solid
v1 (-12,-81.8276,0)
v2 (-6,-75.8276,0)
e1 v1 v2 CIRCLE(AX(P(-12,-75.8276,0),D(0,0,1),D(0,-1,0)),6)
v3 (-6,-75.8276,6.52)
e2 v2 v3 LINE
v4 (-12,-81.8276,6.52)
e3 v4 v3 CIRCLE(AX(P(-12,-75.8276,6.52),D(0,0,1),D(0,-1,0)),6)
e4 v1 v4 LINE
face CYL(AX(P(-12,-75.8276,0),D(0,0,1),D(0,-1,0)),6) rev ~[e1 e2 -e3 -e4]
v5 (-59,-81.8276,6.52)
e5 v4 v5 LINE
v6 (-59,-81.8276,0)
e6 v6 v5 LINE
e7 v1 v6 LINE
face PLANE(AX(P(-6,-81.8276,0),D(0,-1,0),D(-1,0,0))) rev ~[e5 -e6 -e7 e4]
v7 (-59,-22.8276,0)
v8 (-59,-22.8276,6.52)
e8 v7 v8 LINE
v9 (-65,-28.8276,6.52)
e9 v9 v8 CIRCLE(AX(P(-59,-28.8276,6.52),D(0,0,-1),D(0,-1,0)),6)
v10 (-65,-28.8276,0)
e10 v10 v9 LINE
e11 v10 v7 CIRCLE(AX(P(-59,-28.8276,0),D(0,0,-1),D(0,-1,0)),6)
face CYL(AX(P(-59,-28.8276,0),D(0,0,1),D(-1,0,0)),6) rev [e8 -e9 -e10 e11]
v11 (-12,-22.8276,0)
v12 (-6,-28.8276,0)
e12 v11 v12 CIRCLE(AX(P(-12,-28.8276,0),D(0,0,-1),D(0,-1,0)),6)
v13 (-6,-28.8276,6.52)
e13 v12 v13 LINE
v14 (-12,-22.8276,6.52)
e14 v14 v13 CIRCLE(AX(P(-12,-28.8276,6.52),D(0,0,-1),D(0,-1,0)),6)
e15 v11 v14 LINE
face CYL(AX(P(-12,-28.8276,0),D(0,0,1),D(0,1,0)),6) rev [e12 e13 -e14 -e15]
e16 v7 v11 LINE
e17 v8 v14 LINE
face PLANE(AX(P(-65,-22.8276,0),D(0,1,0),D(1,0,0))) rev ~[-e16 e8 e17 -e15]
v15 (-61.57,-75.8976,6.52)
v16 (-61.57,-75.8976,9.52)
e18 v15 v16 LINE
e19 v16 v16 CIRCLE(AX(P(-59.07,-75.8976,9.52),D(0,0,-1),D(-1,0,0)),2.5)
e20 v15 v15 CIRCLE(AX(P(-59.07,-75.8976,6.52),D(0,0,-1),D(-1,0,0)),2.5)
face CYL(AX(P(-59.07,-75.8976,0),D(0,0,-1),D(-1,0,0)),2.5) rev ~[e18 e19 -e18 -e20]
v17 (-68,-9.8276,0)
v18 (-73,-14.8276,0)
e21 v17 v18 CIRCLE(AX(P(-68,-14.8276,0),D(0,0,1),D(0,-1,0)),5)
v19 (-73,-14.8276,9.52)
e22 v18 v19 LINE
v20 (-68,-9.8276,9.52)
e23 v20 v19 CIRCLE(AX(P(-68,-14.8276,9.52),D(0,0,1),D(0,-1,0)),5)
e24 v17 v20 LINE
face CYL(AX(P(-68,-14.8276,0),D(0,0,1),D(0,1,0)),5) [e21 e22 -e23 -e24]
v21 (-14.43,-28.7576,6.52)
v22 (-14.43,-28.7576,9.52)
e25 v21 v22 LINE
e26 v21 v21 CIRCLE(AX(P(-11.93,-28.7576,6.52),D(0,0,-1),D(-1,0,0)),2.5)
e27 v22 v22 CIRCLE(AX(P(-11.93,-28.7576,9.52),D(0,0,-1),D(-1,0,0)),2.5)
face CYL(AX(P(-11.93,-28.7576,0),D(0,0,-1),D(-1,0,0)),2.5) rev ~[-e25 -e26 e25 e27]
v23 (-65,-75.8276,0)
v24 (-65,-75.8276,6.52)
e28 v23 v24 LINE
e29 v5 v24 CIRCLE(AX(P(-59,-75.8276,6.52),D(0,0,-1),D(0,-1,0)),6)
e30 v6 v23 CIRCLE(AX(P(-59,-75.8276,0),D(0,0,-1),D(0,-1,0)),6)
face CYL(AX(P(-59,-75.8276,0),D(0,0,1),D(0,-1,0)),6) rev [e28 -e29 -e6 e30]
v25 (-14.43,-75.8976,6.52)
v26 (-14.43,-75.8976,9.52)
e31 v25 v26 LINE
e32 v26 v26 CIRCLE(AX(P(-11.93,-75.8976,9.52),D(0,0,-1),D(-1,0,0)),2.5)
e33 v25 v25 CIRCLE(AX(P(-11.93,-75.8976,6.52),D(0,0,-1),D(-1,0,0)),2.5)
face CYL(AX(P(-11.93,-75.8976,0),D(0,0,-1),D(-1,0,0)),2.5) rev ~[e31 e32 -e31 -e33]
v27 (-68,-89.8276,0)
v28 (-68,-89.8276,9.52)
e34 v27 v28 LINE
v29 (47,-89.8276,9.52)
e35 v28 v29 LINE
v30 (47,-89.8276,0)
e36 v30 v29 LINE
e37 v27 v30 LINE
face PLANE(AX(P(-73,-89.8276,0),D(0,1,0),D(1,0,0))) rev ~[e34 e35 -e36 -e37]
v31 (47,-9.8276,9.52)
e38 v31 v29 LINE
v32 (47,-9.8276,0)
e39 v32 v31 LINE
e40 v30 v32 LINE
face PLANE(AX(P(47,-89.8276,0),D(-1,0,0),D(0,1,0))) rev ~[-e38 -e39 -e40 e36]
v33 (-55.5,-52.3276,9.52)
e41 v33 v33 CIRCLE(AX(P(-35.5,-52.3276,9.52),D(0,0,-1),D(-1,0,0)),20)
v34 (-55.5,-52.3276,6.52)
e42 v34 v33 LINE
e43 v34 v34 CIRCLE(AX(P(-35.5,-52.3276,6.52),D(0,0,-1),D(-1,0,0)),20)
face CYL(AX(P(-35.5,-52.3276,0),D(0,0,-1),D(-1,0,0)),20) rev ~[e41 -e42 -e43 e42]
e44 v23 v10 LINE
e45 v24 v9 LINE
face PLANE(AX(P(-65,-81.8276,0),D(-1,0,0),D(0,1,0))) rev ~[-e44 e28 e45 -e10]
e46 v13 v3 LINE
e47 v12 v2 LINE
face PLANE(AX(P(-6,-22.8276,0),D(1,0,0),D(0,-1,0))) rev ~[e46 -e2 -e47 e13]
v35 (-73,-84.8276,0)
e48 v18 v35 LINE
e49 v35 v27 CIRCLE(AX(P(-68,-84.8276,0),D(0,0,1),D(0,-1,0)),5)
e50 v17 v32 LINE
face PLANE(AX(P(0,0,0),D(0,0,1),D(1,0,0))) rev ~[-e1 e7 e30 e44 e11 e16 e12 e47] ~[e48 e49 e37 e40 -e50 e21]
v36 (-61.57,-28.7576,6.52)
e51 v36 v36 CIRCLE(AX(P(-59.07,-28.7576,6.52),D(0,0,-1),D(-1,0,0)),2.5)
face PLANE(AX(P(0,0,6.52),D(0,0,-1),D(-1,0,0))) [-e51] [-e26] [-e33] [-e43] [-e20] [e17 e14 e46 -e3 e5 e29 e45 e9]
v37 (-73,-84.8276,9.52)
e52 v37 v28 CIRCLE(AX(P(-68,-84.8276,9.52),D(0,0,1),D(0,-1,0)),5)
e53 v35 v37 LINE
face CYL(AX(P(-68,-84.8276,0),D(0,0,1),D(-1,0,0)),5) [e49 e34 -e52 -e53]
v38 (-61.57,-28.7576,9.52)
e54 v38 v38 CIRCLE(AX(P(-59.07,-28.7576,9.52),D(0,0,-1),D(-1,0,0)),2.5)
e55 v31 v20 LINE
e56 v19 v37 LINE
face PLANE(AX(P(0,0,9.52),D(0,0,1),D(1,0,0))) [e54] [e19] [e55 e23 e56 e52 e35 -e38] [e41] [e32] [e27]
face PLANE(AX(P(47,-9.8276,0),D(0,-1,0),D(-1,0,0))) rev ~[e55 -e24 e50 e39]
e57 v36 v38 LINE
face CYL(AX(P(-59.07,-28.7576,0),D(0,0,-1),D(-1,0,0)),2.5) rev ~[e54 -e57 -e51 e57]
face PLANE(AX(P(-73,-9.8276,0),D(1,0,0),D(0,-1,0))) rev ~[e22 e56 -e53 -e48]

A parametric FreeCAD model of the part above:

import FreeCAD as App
import Part
import Sketcher

V = App.Vector
Q = App.Units.Quantity


def edges_at(feature, points):
    """Names of the edges that pass closest to the given points."""
    edges = feature.Shape.Edges
    near = lambda p: min(range(len(edges)), key=lambda i: edges[i].distToShape(Part.Vertex(*p))[0])
    return sorted({f"Edge{near(p) + 1}" for p in points})


def add_polygon(sketch, points):
    """Adds a closed chain of lines whose ends are joined by coincident constraints."""
    first, n = sketch.GeometryCount, len(points)
    for a, b in zip(points, points[1:] + points[:1]):
        sketch.addGeometry(Part.LineSegment(App.Vector(*a, 0), App.Vector(*b, 0)), False)
    for i in range(n):
        sketch.addConstraint(Sketcher.Constraint("Coincident", first + i, 2, first + (i + 1) % n, 1))

doc = App.newDocument("Part")
body = doc.addObject("PartDesign::Body", "Body")

# Sketch on XY plane
sketch1 = body.newObject("Sketcher::SketchObject", "Sketch")
sketch1.AttachmentSupport = (doc.getObject("XY_Plane"), [""])
sketch1.MapMode = "FlatFace"
add_polygon(sketch1, [(47, -89.8276), (47, -9.8276), (-73, -9.8276), (-73, -89.8276)])  # lines 0-3
sketch1.addConstraint([
    Sketcher.Constraint("Vertical", 0),
    Sketcher.Constraint("Horizontal", 1),
    Sketcher.Constraint("Vertical", 2),
    Sketcher.Constraint("Horizontal", 3),
    Sketcher.Constraint("DistanceX", 1, 2, 1, 1, Q("120 mm")),
    Sketcher.Constraint("DistanceY", 0, 1, 0, 2, Q("80 mm")),
    Sketcher.Constraint("DistanceX", -1, 1, 0, 2, Q("47 mm")),
    Sketcher.Constraint("DistanceY", 0, 2, -1, 1, Q("9.8276 mm")),
])
pad1 = body.newObject("PartDesign::Pad", "Pad")
pad1.Profile = sketch1
pad1.Length = 9.52

# Sketch on XY plane
sketch2 = body.newObject("Sketcher::SketchObject", "Sketch001")
sketch2.AttachmentSupport = (doc.getObject("XY_Plane"), [""])
sketch2.MapMode = "FlatFace"
add_polygon(sketch2, [(-65, -81.8276), (-65, -22.8276), (-6, -22.8276), (-6, -81.8276)])  # lines 0-3
sketch2.addGeometry(Part.Circle(V(-11.93, -75.8976, 0), V(0, 0, 1), 2.5), False)  # 4
sketch2.addGeometry(Part.Circle(V(-59.07, -75.8976, 0), V(0, 0, 1), 2.5), False)  # 5
sketch2.addGeometry(Part.Circle(V(-11.93, -28.7576, 0), V(0, 0, 1), 2.5), False)  # 6
sketch2.addGeometry(Part.Circle(V(-35.5, -52.3276, 0), V(0, 0, 1), 20), False)  # 7
sketch2.addGeometry(Part.Circle(V(-59.07, -28.7576, 0), V(0, 0, 1), 2.5), False)  # 8
sketch2.addConstraint([
    Sketcher.Constraint("Vertical", 0),
    Sketcher.Constraint("Horizontal", 1),
    Sketcher.Constraint("Vertical", 2),
    Sketcher.Constraint("Horizontal", 3),
    Sketcher.Constraint("Equal", 4, 5),
    Sketcher.Constraint("Equal", 5, 6),
    Sketcher.Constraint("Equal", 6, 8),
    Sketcher.Constraint("Horizontal", 4, 3, 5, 3),
    Sketcher.Constraint("Horizontal", 6, 3, 8, 3),
    Sketcher.Constraint("Vertical", 4, 3, 6, 3),
    Sketcher.Constraint("Vertical", 5, 3, 8, 3),
    Sketcher.Constraint("Equal", 3, 0),
    Sketcher.Constraint("Diameter", 4, Q("5 mm")),
    Sketcher.Constraint("Diameter", 7, Q("40 mm")),
    Sketcher.Constraint("DistanceX", 1, 1, 1, 2, Q("59 mm")),
    Sketcher.Constraint("DistanceX", 7, 3, 4, 3, Q("23.57 mm")),
    Sketcher.Constraint("DistanceY", 4, 3, 7, 3, Q("23.57 mm")),
    Sketcher.Constraint("DistanceX", 5, 3, 7, 3, Q("23.57 mm")),
    Sketcher.Constraint("DistanceY", 7, 3, 6, 3, Q("23.57 mm")),
    Sketcher.Constraint("DistanceX", 0, 2, -1, 1, Q("65 mm")),
    Sketcher.Constraint("DistanceX", 7, 3, -1, 1, Q("35.5 mm")),
    Sketcher.Constraint("DistanceY", 7, 3, 0, 2, Q("29.5 mm")),
    Sketcher.Constraint("DistanceY", 4, 3, -1, 1, Q("75.8976 mm")),
])
pocket1 = body.newObject("PartDesign::Pocket", "Pocket")
pocket1.Profile = sketch2
pocket1.Length = 6.52
pocket1.Reversed = True

# Sketch on XY plane
sketch3 = body.newObject("Sketcher::SketchObject", "Sketch002")
sketch3.AttachmentSupport = (doc.getObject("XY_Plane"), [""])
sketch3.MapMode = "FlatFace"
sketch3.addGeometry([
    Part.Circle(V(-35.5, -52.3276, 0), V(0, 0, 1), 20),  # 0
    Part.Circle(V(-59.07, -75.8976, 0), V(0, 0, 1), 2.5),  # 1
    Part.Circle(V(-59.07, -28.7576, 0), V(0, 0, 1), 2.5),  # 2
    Part.Circle(V(-11.93, -28.7576, 0), V(0, 0, 1), 2.5),  # 3
    Part.Circle(V(-11.93, -75.8976, 0), V(0, 0, 1), 2.5),  # 4
], False)
sketch3.addConstraint([
    Sketcher.Constraint("Equal", 1, 2),
    Sketcher.Constraint("Equal", 2, 3),
    Sketcher.Constraint("Equal", 3, 4),
    Sketcher.Constraint("Horizontal", 2, 3, 3, 3),
    Sketcher.Constraint("Horizontal", 1, 3, 4, 3),
    Sketcher.Constraint("Vertical", 1, 3, 2, 3),
    Sketcher.Constraint("Vertical", 3, 3, 4, 3),
    Sketcher.Constraint("Diameter", 0, Q("40 mm")),
    Sketcher.Constraint("Diameter", 1, Q("5 mm")),
    Sketcher.Constraint("DistanceX", 0, 3, -1, 1, Q("35.5 mm")),
    Sketcher.Constraint("DistanceX", 1, 3, -1, 1, Q("59.07 mm")),
    Sketcher.Constraint("DistanceX", 3, 3, -1, 1, Q("11.93 mm")),
    Sketcher.Constraint("DistanceY", 1, 3, 0, 3, Q("23.57 mm")),
    Sketcher.Constraint("DistanceY", 0, 3, 2, 3, Q("23.57 mm")),
    Sketcher.Constraint("DistanceY", 0, 3, -1, 1, Q("52.3276 mm")),
])
pocket2 = body.newObject("PartDesign::Pocket", "Pocket001")
pocket2.Profile = sketch3
pocket2.Type = "ThroughAll"
pocket2.Reversed = True
doc.recompute()

fillet = body.newObject("PartDesign::Fillet", "Fillet")
fillet.Base = (pocket2, edges_at(pocket2, [
    (-65, -22.828, 3.26),
    (-65, -81.828, 3.26),
    (-6, -22.828, 3.26),
    (-6, -81.828, 3.26),
]))
fillet.Radius = 6
doc.recompute()

fillet2 = body.newObject("PartDesign::Fillet", "Fillet001")
fillet2.Base = (fillet, edges_at(fillet, [(-73, -9.828, 4.76), (-73, -89.828, 4.76)]))
fillet2.Radius = 5

doc.recompute()
